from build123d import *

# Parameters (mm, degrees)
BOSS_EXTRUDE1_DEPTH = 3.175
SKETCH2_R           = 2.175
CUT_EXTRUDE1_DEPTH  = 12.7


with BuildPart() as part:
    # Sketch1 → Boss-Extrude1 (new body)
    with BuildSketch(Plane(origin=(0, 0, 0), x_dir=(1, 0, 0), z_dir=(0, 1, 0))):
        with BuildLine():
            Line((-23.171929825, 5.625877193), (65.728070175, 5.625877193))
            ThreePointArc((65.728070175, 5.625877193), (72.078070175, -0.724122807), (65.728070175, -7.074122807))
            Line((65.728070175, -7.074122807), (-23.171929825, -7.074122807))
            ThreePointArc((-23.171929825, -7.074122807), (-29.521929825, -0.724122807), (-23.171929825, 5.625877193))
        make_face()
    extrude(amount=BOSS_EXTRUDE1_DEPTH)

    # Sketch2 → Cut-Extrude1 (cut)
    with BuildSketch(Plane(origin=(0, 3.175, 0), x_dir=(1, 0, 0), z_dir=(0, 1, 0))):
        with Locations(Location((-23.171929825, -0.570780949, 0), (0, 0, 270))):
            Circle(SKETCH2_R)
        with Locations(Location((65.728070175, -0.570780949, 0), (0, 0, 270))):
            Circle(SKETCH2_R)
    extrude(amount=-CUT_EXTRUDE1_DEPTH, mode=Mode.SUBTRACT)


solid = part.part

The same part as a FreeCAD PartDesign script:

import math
import FreeCAD as App
import Part
import Sketcher
Q = App.Units.Quantity

doc = App.newDocument("Part")
body = doc.addObject("PartDesign::Body", "Body")

sketch1 = body.newObject("Sketcher::SketchObject", "Sketch")
sketch1.AttachmentSupport = (doc.getObject("XZ_Plane"), [""])
sketch1.MapMode = "FlatFace"
sketch1.addGeometry([
    Part.LineSegment(App.Vector(66, -6, 0), App.Vector(-23, -6, 0)),
    Part.ArcOfCircle(Part.Circle(App.Vector(-23, 1, 0), App.Vector(0, 0, 1), 6), math.radians(90), math.radians(270)),
    Part.LineSegment(App.Vector(-23, 7, 0), App.Vector(66, 7, 0)),
    Part.ArcOfCircle(Part.Circle(App.Vector(66, 1, 0), App.Vector(0, 0, 1), 6), math.radians(-90), math.radians(90)),
], False)
sketch1.addConstraint([
    Sketcher.Constraint("Tangent", 0, 2, 1, 2),
    Sketcher.Constraint("Tangent", 1, 1, 2, 1),
    Sketcher.Constraint("Tangent", 2, 2, 3, 2),
    Sketcher.Constraint("Tangent", 3, 1, 0, 1),
    Sketcher.Constraint("Horizontal", 0),
    Sketcher.Constraint("Horizontal", 2),
    Sketcher.Constraint("Radius", 1, Q("0.25 in")),
    Sketcher.Constraint("DistanceX", 0, 2, 0, 1, Q("3.5 in")),
    Sketcher.Constraint("DistanceX", 1, 3, -1, 1, Q("23.17193 mm")),
    Sketcher.Constraint("DistanceY", -1, 1, 1, 3, Q("0.724123 mm")),
])
pad1 = body.newObject("PartDesign::Pad", "Pad")
pad1.Profile = sketch1
pad1.Length = Q("0.125 in")
pad1.Reversed = True

sketch2 = body.newObject("Sketcher::SketchObject", "Sketch001")
sketch2.AttachmentSupport = (doc.getObject("XZ_Plane"), [""])
sketch2.MapMode = "FlatFace"
sketch2.AttachmentOffset = App.Placement(App.Vector(0, 0, -0.125 * 25.4), App.Rotation())
sketch2.addGeometry([
    Part.Circle(App.Vector(-23.2, 0.6, 0), App.Vector(0, 0, 1), 2.2),
    Part.Circle(App.Vector(65.7, 0.6, 0), App.Vector(0, 0, 1), 2.2),
], False)
sketch2.addConstraint([
    Sketcher.Constraint("Equal", 0, 1),
    Sketcher.Constraint("Horizontal", 0, 3, 1, 3),
    Sketcher.Constraint("DistanceX", 0, 3, 1, 3, Q("3.5 in")),
    Sketcher.Constraint("Diameter", 0, Q("4.35 mm")),
    Sketcher.Constraint("DistanceX", 0, 3, -1, 1, Q("23.17193 mm")),
    Sketcher.Constraint("DistanceY", -1, 1, 0, 3, Q("0.570781 mm")),
])
pocket1 = body.newObject("PartDesign::Pocket", "Pocket")
pocket1.Profile = sketch2
pocket1.Length = Q("0.5 in")
pocket1.Reversed = True

doc.recompute()
